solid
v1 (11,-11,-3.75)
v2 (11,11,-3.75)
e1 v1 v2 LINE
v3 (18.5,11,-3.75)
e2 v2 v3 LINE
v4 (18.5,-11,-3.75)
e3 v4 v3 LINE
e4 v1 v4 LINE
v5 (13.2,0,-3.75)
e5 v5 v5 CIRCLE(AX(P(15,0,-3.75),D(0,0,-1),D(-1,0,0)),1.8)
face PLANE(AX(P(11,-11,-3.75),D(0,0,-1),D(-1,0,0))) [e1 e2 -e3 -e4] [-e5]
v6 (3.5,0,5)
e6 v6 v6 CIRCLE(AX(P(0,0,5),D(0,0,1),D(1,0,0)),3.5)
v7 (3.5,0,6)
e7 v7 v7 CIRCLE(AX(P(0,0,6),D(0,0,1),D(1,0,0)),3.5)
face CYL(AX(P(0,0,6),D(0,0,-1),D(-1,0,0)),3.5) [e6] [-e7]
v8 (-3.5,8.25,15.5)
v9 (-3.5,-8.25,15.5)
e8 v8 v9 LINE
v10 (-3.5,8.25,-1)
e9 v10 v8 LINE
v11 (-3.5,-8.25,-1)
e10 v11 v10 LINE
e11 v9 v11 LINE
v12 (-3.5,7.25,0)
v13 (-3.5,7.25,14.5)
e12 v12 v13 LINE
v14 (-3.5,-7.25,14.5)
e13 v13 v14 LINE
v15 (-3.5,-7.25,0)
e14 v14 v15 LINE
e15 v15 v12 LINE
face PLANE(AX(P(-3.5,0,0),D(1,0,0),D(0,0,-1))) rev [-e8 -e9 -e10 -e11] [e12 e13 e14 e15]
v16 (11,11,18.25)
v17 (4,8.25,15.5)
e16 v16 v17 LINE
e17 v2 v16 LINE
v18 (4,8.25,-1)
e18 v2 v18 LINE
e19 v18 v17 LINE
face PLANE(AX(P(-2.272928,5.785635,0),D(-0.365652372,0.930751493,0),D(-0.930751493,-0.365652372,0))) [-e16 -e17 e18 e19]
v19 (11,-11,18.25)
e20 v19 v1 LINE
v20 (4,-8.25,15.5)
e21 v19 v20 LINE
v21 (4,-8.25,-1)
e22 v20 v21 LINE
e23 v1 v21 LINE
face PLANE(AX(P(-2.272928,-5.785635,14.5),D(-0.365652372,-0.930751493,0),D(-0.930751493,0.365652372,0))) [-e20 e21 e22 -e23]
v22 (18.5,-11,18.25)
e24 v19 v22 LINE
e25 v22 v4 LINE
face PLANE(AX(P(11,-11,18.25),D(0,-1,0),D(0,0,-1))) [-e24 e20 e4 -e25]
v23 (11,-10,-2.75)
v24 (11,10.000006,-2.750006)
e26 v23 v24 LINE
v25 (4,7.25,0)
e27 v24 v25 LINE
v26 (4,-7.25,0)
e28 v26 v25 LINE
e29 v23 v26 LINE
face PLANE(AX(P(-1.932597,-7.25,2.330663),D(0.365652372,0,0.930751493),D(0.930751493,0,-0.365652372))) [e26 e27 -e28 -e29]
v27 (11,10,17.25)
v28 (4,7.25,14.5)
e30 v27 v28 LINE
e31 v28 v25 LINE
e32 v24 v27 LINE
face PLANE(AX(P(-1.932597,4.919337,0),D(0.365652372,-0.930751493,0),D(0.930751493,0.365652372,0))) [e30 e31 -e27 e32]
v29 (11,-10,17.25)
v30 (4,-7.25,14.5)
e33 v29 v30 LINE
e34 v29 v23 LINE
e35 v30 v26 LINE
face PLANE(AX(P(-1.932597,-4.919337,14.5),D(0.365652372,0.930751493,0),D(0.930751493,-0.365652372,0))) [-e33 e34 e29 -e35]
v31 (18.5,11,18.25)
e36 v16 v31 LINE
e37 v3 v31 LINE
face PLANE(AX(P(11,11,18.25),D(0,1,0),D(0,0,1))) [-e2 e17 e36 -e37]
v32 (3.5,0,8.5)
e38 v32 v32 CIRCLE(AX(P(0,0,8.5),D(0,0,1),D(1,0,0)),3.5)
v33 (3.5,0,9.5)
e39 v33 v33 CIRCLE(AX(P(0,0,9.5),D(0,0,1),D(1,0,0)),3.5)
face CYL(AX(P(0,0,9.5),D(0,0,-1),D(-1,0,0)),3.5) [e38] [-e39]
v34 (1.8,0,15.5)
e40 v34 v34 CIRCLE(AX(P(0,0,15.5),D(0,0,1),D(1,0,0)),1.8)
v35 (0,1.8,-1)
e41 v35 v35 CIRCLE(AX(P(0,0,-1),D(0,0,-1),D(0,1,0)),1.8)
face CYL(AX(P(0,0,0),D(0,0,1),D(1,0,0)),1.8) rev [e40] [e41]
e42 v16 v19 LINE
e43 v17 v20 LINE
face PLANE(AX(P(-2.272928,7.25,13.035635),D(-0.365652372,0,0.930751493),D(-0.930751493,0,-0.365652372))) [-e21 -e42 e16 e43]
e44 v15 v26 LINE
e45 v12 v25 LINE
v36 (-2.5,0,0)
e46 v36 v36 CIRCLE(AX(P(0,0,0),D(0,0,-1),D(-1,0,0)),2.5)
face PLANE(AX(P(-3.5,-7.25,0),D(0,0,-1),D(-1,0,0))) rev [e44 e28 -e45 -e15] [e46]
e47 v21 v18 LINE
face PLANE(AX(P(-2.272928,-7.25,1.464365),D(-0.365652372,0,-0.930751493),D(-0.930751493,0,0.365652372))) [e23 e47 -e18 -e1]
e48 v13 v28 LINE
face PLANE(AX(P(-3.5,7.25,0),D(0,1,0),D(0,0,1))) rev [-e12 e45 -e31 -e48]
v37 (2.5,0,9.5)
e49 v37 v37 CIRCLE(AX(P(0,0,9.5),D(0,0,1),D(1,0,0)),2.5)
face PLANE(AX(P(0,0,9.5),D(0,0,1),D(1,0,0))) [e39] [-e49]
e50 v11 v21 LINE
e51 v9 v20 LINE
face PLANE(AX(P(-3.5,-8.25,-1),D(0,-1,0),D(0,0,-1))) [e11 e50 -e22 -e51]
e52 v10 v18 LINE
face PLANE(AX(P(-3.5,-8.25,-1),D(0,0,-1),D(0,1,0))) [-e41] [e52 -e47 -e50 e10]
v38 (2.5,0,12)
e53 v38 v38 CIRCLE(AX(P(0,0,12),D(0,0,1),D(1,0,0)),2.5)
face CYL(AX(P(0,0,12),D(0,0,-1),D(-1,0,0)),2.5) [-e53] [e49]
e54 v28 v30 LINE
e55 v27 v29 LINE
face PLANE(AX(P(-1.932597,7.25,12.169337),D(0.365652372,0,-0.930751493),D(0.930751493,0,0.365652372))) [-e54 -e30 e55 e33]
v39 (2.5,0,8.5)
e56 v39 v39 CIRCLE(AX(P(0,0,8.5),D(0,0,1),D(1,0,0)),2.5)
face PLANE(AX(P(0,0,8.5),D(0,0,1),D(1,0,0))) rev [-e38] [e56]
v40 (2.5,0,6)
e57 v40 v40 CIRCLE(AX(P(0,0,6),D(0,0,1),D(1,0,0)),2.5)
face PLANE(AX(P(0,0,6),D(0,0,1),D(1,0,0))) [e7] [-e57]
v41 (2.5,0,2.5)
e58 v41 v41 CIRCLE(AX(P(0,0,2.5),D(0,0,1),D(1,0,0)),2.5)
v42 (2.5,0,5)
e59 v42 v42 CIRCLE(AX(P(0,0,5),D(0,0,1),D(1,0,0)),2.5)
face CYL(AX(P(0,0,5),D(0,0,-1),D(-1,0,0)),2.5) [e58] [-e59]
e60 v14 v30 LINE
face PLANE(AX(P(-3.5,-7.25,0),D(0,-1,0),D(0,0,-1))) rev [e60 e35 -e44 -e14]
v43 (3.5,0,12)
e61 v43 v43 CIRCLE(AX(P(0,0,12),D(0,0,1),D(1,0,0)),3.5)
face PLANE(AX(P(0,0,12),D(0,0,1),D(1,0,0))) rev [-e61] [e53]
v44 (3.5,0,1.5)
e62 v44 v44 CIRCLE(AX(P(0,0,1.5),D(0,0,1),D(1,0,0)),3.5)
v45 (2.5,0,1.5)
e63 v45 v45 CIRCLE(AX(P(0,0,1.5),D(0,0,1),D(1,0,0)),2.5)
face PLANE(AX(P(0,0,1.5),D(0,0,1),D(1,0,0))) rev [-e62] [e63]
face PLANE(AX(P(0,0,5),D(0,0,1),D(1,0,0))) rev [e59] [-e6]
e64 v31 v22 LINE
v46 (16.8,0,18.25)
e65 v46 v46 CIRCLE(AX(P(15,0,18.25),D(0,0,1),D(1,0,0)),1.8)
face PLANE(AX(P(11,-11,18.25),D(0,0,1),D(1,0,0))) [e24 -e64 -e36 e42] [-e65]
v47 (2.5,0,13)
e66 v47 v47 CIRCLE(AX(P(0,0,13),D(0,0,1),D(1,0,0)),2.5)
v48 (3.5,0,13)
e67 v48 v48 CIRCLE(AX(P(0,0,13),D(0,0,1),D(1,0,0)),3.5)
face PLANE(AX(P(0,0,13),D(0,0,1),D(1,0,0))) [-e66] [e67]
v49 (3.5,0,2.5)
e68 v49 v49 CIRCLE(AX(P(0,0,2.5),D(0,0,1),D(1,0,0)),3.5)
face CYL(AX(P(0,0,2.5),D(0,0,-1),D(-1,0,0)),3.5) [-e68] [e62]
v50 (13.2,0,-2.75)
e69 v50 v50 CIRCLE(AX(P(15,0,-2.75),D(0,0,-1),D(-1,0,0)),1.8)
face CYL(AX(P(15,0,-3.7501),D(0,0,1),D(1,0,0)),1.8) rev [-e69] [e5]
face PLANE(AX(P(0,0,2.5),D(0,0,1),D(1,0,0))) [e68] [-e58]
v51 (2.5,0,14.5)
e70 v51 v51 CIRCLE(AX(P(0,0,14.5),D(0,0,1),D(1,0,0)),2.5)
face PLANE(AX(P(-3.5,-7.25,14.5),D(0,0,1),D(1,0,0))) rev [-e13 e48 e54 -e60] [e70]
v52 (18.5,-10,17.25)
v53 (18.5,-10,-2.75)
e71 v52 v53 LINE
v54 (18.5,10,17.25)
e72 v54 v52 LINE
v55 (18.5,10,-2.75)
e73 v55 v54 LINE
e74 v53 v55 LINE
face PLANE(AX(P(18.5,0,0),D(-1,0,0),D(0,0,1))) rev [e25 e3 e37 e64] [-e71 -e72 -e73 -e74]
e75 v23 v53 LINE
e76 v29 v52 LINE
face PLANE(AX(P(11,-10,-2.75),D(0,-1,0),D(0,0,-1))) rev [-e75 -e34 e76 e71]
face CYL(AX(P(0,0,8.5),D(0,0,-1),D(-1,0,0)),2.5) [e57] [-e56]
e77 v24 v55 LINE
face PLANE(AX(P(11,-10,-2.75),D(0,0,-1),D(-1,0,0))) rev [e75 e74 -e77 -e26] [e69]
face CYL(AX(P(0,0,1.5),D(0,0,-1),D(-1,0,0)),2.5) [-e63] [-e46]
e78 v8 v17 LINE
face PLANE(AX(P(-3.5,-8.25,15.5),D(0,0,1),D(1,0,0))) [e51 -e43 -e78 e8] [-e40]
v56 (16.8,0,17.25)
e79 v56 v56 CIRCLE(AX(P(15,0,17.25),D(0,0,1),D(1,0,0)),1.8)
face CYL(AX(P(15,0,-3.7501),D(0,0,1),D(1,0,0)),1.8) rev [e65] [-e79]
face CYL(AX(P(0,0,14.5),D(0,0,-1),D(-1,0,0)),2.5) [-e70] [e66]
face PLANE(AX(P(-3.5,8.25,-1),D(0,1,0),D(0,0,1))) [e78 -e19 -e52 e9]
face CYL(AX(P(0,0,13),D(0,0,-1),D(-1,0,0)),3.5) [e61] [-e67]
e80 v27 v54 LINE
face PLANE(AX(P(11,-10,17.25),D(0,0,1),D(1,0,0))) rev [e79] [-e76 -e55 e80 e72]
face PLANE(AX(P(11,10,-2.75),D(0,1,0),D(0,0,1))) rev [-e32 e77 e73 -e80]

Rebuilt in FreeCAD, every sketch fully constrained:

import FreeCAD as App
import Part
import Sketcher
from FreeCAD import Vector

doc = App.newDocument("Part")
body = doc.addObject("PartDesign::Body", "Body")

# Sketch on XY plane
sketch1 = body.newObject("Sketcher::SketchObject", "Sketch")
sketch1.AttachmentSupport = (doc.getObject("XY_Plane"), [""])
sketch1.MapMode = "FlatFace"
sketch1.addGeometry(Part.Circle(Vector(0, 0, 0), Vector(0, 0, 1), 2.5), False)
sketch1.addConstraint([
    Sketcher.Constraint("Coincident", 0, 3, -1, 1),
    Sketcher.Constraint("Diameter", 0, 5.0),
])
pad1 = body.newObject("PartDesign::Pad", "Pad")
pad1.Profile = sketch1
pad1.Length = 1.5

# Sketch on XY plane
sketch2 = body.newObject("Sketcher::SketchObject", "Sketch001")
sketch2.AttachmentSupport = (doc.getObject("XY_Plane"), [""])
sketch2.MapMode = "FlatFace"
sketch2.AttachmentOffset = App.Placement(Vector(0, 0, 1.5), App.Rotation())
sketch2.addGeometry(Part.Circle(Vector(0, 0, 0), Vector(0, 0, 1), 3.5), False)
sketch2.addConstraint([
    Sketcher.Constraint("Coincident", 0, 3, -1, 1),
    Sketcher.Constraint("Diameter", 0, 7.0),
])
pad2 = body.newObject("PartDesign::Pad", "Pad001")
pad2.Profile = sketch2
pad2.Length = 1

# Sketch on XY plane
sketch3 = body.newObject("Sketcher::SketchObject", "Sketch002")
sketch3.AttachmentSupport = (doc.getObject("XY_Plane"), [""])
sketch3.MapMode = "FlatFace"
sketch3.AttachmentOffset = App.Placement(Vector(0, 0, 2.5), App.Rotation())
sketch3.addGeometry(Part.Circle(Vector(0, 0, 0), Vector(0, 0, 1), 2.5), False)
sketch3.addConstraint([
    Sketcher.Constraint("Coincident", 0, 3, -1, 1),
    Sketcher.Constraint("Diameter", 0, 5.0),
])
pad3 = body.newObject("PartDesign::Pad", "Pad002")
pad3.Profile = sketch3
pad3.Length = 2.5

# Sketch on XY plane
sketch4 = body.newObject("Sketcher::SketchObject", "Sketch003")
sketch4.AttachmentSupport = (doc.getObject("XY_Plane"), [""])
sketch4.MapMode = "FlatFace"
sketch4.AttachmentOffset = App.Placement(Vector(0, 0, 5), App.Rotation())
sketch4.addGeometry(Part.Circle(Vector(0, 0, 0), Vector(0, 0, 1), 3.5), False)
sketch4.addConstraint([
    Sketcher.Constraint("Coincident", 0, 3, -1, 1),
    Sketcher.Constraint("Diameter", 0, 7.0),
])
pad4 = body.newObject("PartDesign::Pad", "Pad003")
pad4.Profile = sketch4
pad4.Length = 1

# Sketch on XY plane
sketch5 = body.newObject("Sketcher::SketchObject", "Sketch004")
sketch5.AttachmentSupport = (doc.getObject("XY_Plane"), [""])
sketch5.MapMode = "FlatFace"
sketch5.AttachmentOffset = App.Placement(Vector(0, 0, 6), App.Rotation())
sketch5.addGeometry(Part.Circle(Vector(0, 0, 0), Vector(0, 0, 1), 2.5), False)
sketch5.addConstraint([
    Sketcher.Constraint("Coincident", 0, 3, -1, 1),
    Sketcher.Constraint("Diameter", 0, 5.0),
])
pad5 = body.newObject("PartDesign::Pad", "Pad004")
pad5.Profile = sketch5
pad5.Length = 2.5

# Sketch on XY plane
sketch6 = body.newObject("Sketcher::SketchObject", "Sketch005")
sketch6.AttachmentSupport = (doc.getObject("XY_Plane"), [""])
sketch6.MapMode = "FlatFace"
sketch6.AttachmentOffset = App.Placement(Vector(0, 0, 8.5), App.Rotation())
sketch6.addGeometry(Part.Circle(Vector(0, 0, 0), Vector(0, 0, 1), 3.5), False)
sketch6.addConstraint([
    Sketcher.Constraint("Coincident", 0, 3, -1, 1),
    Sketcher.Constraint("Diameter", 0, 7.0),
])
pad6 = body.newObject("PartDesign::Pad", "Pad005")
pad6.Profile = sketch6
pad6.Length = 1

# Sketch on XY plane
sketch7 = body.newObject("Sketcher::SketchObject", "Sketch006")
sketch7.AttachmentSupport = (doc.getObject("XY_Plane"), [""])
sketch7.MapMode = "FlatFace"
sketch7.AttachmentOffset = App.Placement(Vector(0, 0, 9.5), App.Rotation())
sketch7.addGeometry(Part.Circle(Vector(0, 0, 0), Vector(0, 0, 1), 2.5), False)
sketch7.addConstraint([
    Sketcher.Constraint("Coincident", 0, 3, -1, 1),
    Sketcher.Constraint("Diameter", 0, 5.0),
])
pad7 = body.newObject("PartDesign::Pad", "Pad006")
pad7.Profile = sketch7
pad7.Length = 2.5

# Sketch on XY plane
sketch8 = body.newObject("Sketcher::SketchObject", "Sketch007")
sketch8.AttachmentSupport = (doc.getObject("XY_Plane"), [""])
sketch8.MapMode = "FlatFace"
sketch8.AttachmentOffset = App.Placement(Vector(0, 0, 12), App.Rotation())
sketch8.addGeometry(Part.Circle(Vector(0, 0, 0), Vector(0, 0, 1), 3.5), False)
sketch8.addConstraint([
    Sketcher.Constraint("Coincident", 0, 3, -1, 1),
    Sketcher.Constraint("Diameter", 0, 7.0),
])
pad8 = body.newObject("PartDesign::Pad", "Pad007")
pad8.Profile = sketch8
pad8.Length = 1

# Sketch on XY plane
sketch9 = body.newObject("Sketcher::SketchObject", "Sketch008")
sketch9.AttachmentSupport = (doc.getObject("XY_Plane"), [""])
sketch9.MapMode = "FlatFace"
sketch9.AttachmentOffset = App.Placement(Vector(0, 0, 13), App.Rotation())
sketch9.addGeometry(Part.Circle(Vector(0, 0, 0), Vector(0, 0, 1), 2.5), False)
sketch9.addConstraint([
    Sketcher.Constraint("Coincident", 0, 3, -1, 1),
    Sketcher.Constraint("Diameter", 0, 5.0),
])
pad9 = body.newObject("PartDesign::Pad", "Pad008")
pad9.Profile = sketch9
pad9.Length = 1.5

# Sketch on XY plane
sketch10 = body.newObject("Sketcher::SketchObject", "Sketch009")
sketch10.AttachmentSupport = (doc.getObject("XY_Plane"), [""])
sketch10.MapMode = "FlatFace"
sketch10.AttachmentOffset = App.Placement(Vector(0, 0, 14.5), App.Rotation())
sketch10.addGeometry(Part.Circle(Vector(0, 0, 0), Vector(0, 0, 1), 1.8), False)
sketch10.addConstraint([
    Sketcher.Constraint("Coincident", 0, 3, -1, 1),
    Sketcher.Constraint("Diameter", 0, 3.6),
])
pocket1 = body.newObject("PartDesign::Pocket", "Pocket")
pocket1.Profile = sketch10
pocket1.Type = "ThroughAll"

# Sketch on YZ plane
sketch11 = body.newObject("Sketcher::SketchObject", "Sketch010")
sketch11.AttachmentSupport = (doc.getObject("YZ_Plane"), [""])
sketch11.MapMode = "FlatFace"
sketch11.addGeometry([
    Part.LineSegment(Vector(8, 16, 0), Vector(-8, 16, 0)),  # 0
    Part.LineSegment(Vector(-8, 16, 0), Vector(-8, -1, 0)),  # 1
    Part.LineSegment(Vector(-8, -1, 0), Vector(8, -1, 0)),  # 2
    Part.LineSegment(Vector(8, -1, 0), Vector(8, 16, 0)),  # 3
    Part.LineSegment(Vector(-7, 0, 0), Vector(-7, 14, 0)),  # 4
    Part.LineSegment(Vector(-7, 14, 0), Vector(7, 14, 0)),  # 5
    Part.LineSegment(Vector(7, 14, 0), Vector(7, 0, 0)),  # 6
    Part.LineSegment(Vector(7, 0, 0), Vector(-7, 0, 0)),  # 7
], False)
sketch11.addConstraint([
    Sketcher.Constraint("Coincident", 0, 2, 1, 1),
    Sketcher.Constraint("Coincident", 1, 2, 2, 1),
    Sketcher.Constraint("Coincident", 2, 2, 3, 1),
    Sketcher.Constraint("Coincident", 3, 2, 0, 1),
    Sketcher.Constraint("Coincident", 4, 2, 5, 1),
    Sketcher.Constraint("Coincident", 5, 2, 6, 1),
    Sketcher.Constraint("Coincident", 6, 2, 7, 1),
    Sketcher.Constraint("Coincident", 7, 2, 4, 1),
    Sketcher.Constraint("Horizontal", 0),
    Sketcher.Constraint("Vertical", 1),
    Sketcher.Constraint("Horizontal", 2),
    Sketcher.Constraint("Vertical", 3),
    Sketcher.Constraint("Vertical", 4),
    Sketcher.Constraint("Horizontal", 5),
    Sketcher.Constraint("Vertical", 6),
    Sketcher.Constraint("Horizontal", 7),
    Sketcher.Constraint("Symmetric", 6, 2, 7, 2, -1, 1),
    Sketcher.Constraint("Equal", 2, 1),
    Sketcher.Constraint("Equal", 7, 4),
    Sketcher.Constraint("DistanceX", 0, 2, 0, 1, 16.5),
    Sketcher.Constraint("DistanceX", 5, 1, 5, 2, 14.5),
    Sketcher.Constraint("DistanceY", 1, 2, -1, 1, 1.0),
    Sketcher.Constraint("DistanceX", 0, 2, 4, 2, 1.0),
])
pad10 = body.newObject("PartDesign::Pad", "Pad009")
pad10.Profile = sketch11
pad10.Type = "TwoLengths"
pad10.Length = 4
pad10.Length2 = 3.5
body2 = doc.addObject("PartDesign::Body", "Body001")

# Sketch on YZ plane
sketch12 = body2.newObject("Sketcher::SketchObject", "Sketch011")
sketch12.AttachmentSupport = (doc.getObject("YZ_Plane001"), [""])
sketch12.MapMode = "FlatFace"
sketch12.AttachmentOffset = App.Placement(Vector(0, 0, 15), App.Rotation())
sketch12.addGeometry([
    Part.LineSegment(Vector(11, 18, 0), Vector(-11, 18, 0)),  # 0
    Part.LineSegment(Vector(-11, 18, 0), Vector(-11, -4, 0)),  # 1
    Part.LineSegment(Vector(-11, -4, 0), Vector(11, -4, 0)),  # 2
    Part.LineSegment(Vector(11, -4, 0), Vector(11, 18, 0)),  # 3
    Part.LineSegment(Vector(-10, -3, 0), Vector(-10, 17, 0)),  # 4
    Part.LineSegment(Vector(-10, 17, 0), Vector(10, 17, 0)),  # 5
    Part.LineSegment(Vector(10, 17, 0), Vector(10, -3, 0)),  # 6
    Part.LineSegment(Vector(10, -3, 0), Vector(-10, -3, 0)),  # 7
], False)
sketch12.addConstraint([
    Sketcher.Constraint("Coincident", 0, 2, 1, 1),
    Sketcher.Constraint("Coincident", 1, 2, 2, 1),
    Sketcher.Constraint("Coincident", 2, 2, 3, 1),
    Sketcher.Constraint("Coincident", 3, 2, 0, 1),
    Sketcher.Constraint("Coincident", 4, 2, 5, 1),
    Sketcher.Constraint("Coincident", 5, 2, 6, 1),
    Sketcher.Constraint("Coincident", 6, 2, 7, 1),
    Sketcher.Constraint("Coincident", 7, 2, 4, 1),
    Sketcher.Constraint("Horizontal", 0),
    Sketcher.Constraint("Vertical", 1),
    Sketcher.Constraint("Horizontal", 2),
    Sketcher.Constraint("Vertical", 3),
    Sketcher.Constraint("Vertical", 4),
    Sketcher.Constraint("Horizontal", 5),
    Sketcher.Constraint("Vertical", 6),
    Sketcher.Constraint("Horizontal", 7),
    Sketcher.Constraint("Equal", 2, 1),
    Sketcher.Constraint("Equal", 7, 4),
    Sketcher.Constraint("DistanceX", 0, 2, 0, 1, 22.0),
    Sketcher.Constraint("DistanceX", 5, 1, 5, 2, 20.0),
    Sketcher.Constraint("DistanceX", 0, 2, -1, 1, 11.0),
    Sketcher.Constraint("DistanceX", 4, 2, -1, 1, 10.0),
    Sketcher.Constraint("DistanceY", 4, 2, 0, 2, 1.0),
    Sketcher.Constraint("DistanceY", -1, 1, 0, 2, 18.25),
])
pad11 = body2.newObject("PartDesign::Pad", "Pad010")
pad11.Profile = sketch12
pad11.Type = "TwoLengths"
pad11.Length = 3.5
pad11.Length2 = 4
body.AllowCompound = True
doc.recompute()

boolean = body.newObject("PartDesign::Boolean", "Boolean")
boolean.Type = "Fuse"
boolean.addObjects([body2])

# Sketch on YZ plane
sketch13 = body.newObject("Sketcher::SketchObject", "Sketch012")
sketch13.AttachmentSupport = (doc.getObject("YZ_Plane"), [""])
sketch13.MapMode = "FlatFace"
sketch13.AttachmentOffset = App.Placement(Vector(0, 0, 11), App.Rotation())
sketch13.addGeometry([
    Part.LineSegment(Vector(11, -3.8, 0), Vector(10, -2.8, 0)),
    Part.LineSegment(Vector(10, -2.8, 0), Vector(10, 17.2, 0)),
    Part.LineSegment(Vector(10, 17.2, 0), Vector(11, 18.2, 0)),
    Part.LineSegment(Vector(11, 18.2, 0), Vector(11, -3.8, 0)),
], False)
sketch13.addConstraint([
    Sketcher.Constraint("Coincident", 0, 2, 1, 1),
    Sketcher.Constraint("Coincident", 1, 2, 2, 1),
    Sketcher.Constraint("Coincident", 2, 2, 3, 1),
    Sketcher.Constraint("Coincident", 3, 2, 0, 1),
    Sketcher.Constraint("Vertical", 1),
    Sketcher.Constraint("Vertical", 3),
    Sketcher.Constraint("Perpendicular", 0, 2),
    Sketcher.Constraint("Equal", 0, 2),
    Sketcher.Constraint("DistanceY", 1, 1, 1, 2, 20.0),
    Sketcher.Constraint("DistanceY", 3, 2, 3, 1, 22.0),
    Sketcher.Constraint("DistanceX", -1, 1, 0, 2, 10.0),
    Sketcher.Constraint("DistanceY", 0, 2, -1, 1, 2.75),
])

# Sketch on YZ plane
sketch14 = body.newObject("Sketcher::SketchObject", "Sketch013")
sketch14.AttachmentSupport = (doc.getObject("YZ_Plane"), [""])
sketch14.MapMode = "FlatFace"
sketch14.AttachmentOffset = App.Placement(Vector(0, 0, 4), App.Rotation())
sketch14.addGeometry([
    Part.LineSegment(Vector(8.2, 15.5, 0), Vector(7.2, 14.5, 0)),
    Part.LineSegment(Vector(7.2, 14.5, 0), Vector(7.2, 0, 0)),
    Part.LineSegment(Vector(7.2, 0, 0), Vector(8.2, -1, 0)),
    Part.LineSegment(Vector(8.2, -1, 0), Vector(8.2, 15.5, 0)),
], False)
sketch14.addConstraint([
    Sketcher.Constraint("Coincident", 0, 2, 1, 1),
    Sketcher.Constraint("Coincident", 1, 2, 2, 1),
    Sketcher.Constraint("Coincident", 2, 2, 3, 1),
    Sketcher.Constraint("Coincident", 3, 2, 0, 1),
    Sketcher.Constraint("Vertical", 1),
    Sketcher.Constraint("Vertical", 3),
    Sketcher.Constraint("PointOnObject", 1, 2, -1),
    Sketcher.Constraint("Perpendicular", 0, 2),
    Sketcher.Constraint("Equal", 0, 2),
    Sketcher.Constraint("DistanceY", 1, 2, 1, 1, 14.5),
    Sketcher.Constraint("DistanceY", 3, 1, 3, 2, 16.5),
    Sketcher.Constraint("DistanceX", -1, 1, 0, 2, 7.25),
])

additiveloft = body.newObject("PartDesign::AdditiveLoft", "AdditiveLoft")
additiveloft.Profile = sketch13
additiveloft.Sections = [sketch14]
doc.recompute()

datumline = body.newObject("PartDesign::Line", "DatumLine")
datumline.Placement = App.Placement(Vector(0, 0, 7.25), App.Rotation(Vector(0, 0, 1), Vector(1, 0, 0)))
polarpattern = body.newObject("PartDesign::PolarPattern", "PolarPattern")
polarpattern.Originals = [additiveloft]
polarpattern.Axis = (datumline, [""])
polarpattern.Angle = 360
polarpattern.Occurrences = 4
body.Tip = polarpattern

# Sketch on XY plane
sketch15 = body.newObject("Sketcher::SketchObject", "Sketch014")
sketch15.AttachmentSupport = (doc.getObject("XY_Plane"), [""])
sketch15.MapMode = "FlatFace"
sketch15.AttachmentOffset = App.Placement(Vector(0, 0, 15.5), App.Rotation())
sketch15.addGeometry(Part.Circle(Vector(0, 0, 0), Vector(0, 0, 1), 1.8), False)
sketch15.addConstraint([
    Sketcher.Constraint("Coincident", 0, 3, -1, 1),
    Sketcher.Constraint("Diameter", 0, 3.6),
])
pocket2 = body.newObject("PartDesign::Pocket", "Pocket001")
pocket2.Profile = sketch15
pocket2.Type = "ThroughAll"

# Sketch on XY plane
sketch16 = body.newObject("Sketcher::SketchObject", "Sketch015")
sketch16.AttachmentSupport = (doc.getObject("XY_Plane"), [""])
sketch16.MapMode = "FlatFace"
sketch16.AttachmentOffset = App.Placement(Vector(0, 0, 18.25), App.Rotation())
sketch16.addGeometry(Part.Circle(Vector(15, 0, 0), Vector(0, 0, 1), 1.8), False)
sketch16.addConstraint([
    Sketcher.Constraint("PointOnObject", 0, 3, -1),
    Sketcher.Constraint("Diameter", 0, 3.6),
    Sketcher.Constraint("DistanceX", -1, 1, 0, 3, 15.0),
])
pocket3 = body.newObject("PartDesign::Pocket", "Pocket002")
pocket3.Profile = sketch16
pocket3.Type = "ThroughAll"

doc.recompute()
